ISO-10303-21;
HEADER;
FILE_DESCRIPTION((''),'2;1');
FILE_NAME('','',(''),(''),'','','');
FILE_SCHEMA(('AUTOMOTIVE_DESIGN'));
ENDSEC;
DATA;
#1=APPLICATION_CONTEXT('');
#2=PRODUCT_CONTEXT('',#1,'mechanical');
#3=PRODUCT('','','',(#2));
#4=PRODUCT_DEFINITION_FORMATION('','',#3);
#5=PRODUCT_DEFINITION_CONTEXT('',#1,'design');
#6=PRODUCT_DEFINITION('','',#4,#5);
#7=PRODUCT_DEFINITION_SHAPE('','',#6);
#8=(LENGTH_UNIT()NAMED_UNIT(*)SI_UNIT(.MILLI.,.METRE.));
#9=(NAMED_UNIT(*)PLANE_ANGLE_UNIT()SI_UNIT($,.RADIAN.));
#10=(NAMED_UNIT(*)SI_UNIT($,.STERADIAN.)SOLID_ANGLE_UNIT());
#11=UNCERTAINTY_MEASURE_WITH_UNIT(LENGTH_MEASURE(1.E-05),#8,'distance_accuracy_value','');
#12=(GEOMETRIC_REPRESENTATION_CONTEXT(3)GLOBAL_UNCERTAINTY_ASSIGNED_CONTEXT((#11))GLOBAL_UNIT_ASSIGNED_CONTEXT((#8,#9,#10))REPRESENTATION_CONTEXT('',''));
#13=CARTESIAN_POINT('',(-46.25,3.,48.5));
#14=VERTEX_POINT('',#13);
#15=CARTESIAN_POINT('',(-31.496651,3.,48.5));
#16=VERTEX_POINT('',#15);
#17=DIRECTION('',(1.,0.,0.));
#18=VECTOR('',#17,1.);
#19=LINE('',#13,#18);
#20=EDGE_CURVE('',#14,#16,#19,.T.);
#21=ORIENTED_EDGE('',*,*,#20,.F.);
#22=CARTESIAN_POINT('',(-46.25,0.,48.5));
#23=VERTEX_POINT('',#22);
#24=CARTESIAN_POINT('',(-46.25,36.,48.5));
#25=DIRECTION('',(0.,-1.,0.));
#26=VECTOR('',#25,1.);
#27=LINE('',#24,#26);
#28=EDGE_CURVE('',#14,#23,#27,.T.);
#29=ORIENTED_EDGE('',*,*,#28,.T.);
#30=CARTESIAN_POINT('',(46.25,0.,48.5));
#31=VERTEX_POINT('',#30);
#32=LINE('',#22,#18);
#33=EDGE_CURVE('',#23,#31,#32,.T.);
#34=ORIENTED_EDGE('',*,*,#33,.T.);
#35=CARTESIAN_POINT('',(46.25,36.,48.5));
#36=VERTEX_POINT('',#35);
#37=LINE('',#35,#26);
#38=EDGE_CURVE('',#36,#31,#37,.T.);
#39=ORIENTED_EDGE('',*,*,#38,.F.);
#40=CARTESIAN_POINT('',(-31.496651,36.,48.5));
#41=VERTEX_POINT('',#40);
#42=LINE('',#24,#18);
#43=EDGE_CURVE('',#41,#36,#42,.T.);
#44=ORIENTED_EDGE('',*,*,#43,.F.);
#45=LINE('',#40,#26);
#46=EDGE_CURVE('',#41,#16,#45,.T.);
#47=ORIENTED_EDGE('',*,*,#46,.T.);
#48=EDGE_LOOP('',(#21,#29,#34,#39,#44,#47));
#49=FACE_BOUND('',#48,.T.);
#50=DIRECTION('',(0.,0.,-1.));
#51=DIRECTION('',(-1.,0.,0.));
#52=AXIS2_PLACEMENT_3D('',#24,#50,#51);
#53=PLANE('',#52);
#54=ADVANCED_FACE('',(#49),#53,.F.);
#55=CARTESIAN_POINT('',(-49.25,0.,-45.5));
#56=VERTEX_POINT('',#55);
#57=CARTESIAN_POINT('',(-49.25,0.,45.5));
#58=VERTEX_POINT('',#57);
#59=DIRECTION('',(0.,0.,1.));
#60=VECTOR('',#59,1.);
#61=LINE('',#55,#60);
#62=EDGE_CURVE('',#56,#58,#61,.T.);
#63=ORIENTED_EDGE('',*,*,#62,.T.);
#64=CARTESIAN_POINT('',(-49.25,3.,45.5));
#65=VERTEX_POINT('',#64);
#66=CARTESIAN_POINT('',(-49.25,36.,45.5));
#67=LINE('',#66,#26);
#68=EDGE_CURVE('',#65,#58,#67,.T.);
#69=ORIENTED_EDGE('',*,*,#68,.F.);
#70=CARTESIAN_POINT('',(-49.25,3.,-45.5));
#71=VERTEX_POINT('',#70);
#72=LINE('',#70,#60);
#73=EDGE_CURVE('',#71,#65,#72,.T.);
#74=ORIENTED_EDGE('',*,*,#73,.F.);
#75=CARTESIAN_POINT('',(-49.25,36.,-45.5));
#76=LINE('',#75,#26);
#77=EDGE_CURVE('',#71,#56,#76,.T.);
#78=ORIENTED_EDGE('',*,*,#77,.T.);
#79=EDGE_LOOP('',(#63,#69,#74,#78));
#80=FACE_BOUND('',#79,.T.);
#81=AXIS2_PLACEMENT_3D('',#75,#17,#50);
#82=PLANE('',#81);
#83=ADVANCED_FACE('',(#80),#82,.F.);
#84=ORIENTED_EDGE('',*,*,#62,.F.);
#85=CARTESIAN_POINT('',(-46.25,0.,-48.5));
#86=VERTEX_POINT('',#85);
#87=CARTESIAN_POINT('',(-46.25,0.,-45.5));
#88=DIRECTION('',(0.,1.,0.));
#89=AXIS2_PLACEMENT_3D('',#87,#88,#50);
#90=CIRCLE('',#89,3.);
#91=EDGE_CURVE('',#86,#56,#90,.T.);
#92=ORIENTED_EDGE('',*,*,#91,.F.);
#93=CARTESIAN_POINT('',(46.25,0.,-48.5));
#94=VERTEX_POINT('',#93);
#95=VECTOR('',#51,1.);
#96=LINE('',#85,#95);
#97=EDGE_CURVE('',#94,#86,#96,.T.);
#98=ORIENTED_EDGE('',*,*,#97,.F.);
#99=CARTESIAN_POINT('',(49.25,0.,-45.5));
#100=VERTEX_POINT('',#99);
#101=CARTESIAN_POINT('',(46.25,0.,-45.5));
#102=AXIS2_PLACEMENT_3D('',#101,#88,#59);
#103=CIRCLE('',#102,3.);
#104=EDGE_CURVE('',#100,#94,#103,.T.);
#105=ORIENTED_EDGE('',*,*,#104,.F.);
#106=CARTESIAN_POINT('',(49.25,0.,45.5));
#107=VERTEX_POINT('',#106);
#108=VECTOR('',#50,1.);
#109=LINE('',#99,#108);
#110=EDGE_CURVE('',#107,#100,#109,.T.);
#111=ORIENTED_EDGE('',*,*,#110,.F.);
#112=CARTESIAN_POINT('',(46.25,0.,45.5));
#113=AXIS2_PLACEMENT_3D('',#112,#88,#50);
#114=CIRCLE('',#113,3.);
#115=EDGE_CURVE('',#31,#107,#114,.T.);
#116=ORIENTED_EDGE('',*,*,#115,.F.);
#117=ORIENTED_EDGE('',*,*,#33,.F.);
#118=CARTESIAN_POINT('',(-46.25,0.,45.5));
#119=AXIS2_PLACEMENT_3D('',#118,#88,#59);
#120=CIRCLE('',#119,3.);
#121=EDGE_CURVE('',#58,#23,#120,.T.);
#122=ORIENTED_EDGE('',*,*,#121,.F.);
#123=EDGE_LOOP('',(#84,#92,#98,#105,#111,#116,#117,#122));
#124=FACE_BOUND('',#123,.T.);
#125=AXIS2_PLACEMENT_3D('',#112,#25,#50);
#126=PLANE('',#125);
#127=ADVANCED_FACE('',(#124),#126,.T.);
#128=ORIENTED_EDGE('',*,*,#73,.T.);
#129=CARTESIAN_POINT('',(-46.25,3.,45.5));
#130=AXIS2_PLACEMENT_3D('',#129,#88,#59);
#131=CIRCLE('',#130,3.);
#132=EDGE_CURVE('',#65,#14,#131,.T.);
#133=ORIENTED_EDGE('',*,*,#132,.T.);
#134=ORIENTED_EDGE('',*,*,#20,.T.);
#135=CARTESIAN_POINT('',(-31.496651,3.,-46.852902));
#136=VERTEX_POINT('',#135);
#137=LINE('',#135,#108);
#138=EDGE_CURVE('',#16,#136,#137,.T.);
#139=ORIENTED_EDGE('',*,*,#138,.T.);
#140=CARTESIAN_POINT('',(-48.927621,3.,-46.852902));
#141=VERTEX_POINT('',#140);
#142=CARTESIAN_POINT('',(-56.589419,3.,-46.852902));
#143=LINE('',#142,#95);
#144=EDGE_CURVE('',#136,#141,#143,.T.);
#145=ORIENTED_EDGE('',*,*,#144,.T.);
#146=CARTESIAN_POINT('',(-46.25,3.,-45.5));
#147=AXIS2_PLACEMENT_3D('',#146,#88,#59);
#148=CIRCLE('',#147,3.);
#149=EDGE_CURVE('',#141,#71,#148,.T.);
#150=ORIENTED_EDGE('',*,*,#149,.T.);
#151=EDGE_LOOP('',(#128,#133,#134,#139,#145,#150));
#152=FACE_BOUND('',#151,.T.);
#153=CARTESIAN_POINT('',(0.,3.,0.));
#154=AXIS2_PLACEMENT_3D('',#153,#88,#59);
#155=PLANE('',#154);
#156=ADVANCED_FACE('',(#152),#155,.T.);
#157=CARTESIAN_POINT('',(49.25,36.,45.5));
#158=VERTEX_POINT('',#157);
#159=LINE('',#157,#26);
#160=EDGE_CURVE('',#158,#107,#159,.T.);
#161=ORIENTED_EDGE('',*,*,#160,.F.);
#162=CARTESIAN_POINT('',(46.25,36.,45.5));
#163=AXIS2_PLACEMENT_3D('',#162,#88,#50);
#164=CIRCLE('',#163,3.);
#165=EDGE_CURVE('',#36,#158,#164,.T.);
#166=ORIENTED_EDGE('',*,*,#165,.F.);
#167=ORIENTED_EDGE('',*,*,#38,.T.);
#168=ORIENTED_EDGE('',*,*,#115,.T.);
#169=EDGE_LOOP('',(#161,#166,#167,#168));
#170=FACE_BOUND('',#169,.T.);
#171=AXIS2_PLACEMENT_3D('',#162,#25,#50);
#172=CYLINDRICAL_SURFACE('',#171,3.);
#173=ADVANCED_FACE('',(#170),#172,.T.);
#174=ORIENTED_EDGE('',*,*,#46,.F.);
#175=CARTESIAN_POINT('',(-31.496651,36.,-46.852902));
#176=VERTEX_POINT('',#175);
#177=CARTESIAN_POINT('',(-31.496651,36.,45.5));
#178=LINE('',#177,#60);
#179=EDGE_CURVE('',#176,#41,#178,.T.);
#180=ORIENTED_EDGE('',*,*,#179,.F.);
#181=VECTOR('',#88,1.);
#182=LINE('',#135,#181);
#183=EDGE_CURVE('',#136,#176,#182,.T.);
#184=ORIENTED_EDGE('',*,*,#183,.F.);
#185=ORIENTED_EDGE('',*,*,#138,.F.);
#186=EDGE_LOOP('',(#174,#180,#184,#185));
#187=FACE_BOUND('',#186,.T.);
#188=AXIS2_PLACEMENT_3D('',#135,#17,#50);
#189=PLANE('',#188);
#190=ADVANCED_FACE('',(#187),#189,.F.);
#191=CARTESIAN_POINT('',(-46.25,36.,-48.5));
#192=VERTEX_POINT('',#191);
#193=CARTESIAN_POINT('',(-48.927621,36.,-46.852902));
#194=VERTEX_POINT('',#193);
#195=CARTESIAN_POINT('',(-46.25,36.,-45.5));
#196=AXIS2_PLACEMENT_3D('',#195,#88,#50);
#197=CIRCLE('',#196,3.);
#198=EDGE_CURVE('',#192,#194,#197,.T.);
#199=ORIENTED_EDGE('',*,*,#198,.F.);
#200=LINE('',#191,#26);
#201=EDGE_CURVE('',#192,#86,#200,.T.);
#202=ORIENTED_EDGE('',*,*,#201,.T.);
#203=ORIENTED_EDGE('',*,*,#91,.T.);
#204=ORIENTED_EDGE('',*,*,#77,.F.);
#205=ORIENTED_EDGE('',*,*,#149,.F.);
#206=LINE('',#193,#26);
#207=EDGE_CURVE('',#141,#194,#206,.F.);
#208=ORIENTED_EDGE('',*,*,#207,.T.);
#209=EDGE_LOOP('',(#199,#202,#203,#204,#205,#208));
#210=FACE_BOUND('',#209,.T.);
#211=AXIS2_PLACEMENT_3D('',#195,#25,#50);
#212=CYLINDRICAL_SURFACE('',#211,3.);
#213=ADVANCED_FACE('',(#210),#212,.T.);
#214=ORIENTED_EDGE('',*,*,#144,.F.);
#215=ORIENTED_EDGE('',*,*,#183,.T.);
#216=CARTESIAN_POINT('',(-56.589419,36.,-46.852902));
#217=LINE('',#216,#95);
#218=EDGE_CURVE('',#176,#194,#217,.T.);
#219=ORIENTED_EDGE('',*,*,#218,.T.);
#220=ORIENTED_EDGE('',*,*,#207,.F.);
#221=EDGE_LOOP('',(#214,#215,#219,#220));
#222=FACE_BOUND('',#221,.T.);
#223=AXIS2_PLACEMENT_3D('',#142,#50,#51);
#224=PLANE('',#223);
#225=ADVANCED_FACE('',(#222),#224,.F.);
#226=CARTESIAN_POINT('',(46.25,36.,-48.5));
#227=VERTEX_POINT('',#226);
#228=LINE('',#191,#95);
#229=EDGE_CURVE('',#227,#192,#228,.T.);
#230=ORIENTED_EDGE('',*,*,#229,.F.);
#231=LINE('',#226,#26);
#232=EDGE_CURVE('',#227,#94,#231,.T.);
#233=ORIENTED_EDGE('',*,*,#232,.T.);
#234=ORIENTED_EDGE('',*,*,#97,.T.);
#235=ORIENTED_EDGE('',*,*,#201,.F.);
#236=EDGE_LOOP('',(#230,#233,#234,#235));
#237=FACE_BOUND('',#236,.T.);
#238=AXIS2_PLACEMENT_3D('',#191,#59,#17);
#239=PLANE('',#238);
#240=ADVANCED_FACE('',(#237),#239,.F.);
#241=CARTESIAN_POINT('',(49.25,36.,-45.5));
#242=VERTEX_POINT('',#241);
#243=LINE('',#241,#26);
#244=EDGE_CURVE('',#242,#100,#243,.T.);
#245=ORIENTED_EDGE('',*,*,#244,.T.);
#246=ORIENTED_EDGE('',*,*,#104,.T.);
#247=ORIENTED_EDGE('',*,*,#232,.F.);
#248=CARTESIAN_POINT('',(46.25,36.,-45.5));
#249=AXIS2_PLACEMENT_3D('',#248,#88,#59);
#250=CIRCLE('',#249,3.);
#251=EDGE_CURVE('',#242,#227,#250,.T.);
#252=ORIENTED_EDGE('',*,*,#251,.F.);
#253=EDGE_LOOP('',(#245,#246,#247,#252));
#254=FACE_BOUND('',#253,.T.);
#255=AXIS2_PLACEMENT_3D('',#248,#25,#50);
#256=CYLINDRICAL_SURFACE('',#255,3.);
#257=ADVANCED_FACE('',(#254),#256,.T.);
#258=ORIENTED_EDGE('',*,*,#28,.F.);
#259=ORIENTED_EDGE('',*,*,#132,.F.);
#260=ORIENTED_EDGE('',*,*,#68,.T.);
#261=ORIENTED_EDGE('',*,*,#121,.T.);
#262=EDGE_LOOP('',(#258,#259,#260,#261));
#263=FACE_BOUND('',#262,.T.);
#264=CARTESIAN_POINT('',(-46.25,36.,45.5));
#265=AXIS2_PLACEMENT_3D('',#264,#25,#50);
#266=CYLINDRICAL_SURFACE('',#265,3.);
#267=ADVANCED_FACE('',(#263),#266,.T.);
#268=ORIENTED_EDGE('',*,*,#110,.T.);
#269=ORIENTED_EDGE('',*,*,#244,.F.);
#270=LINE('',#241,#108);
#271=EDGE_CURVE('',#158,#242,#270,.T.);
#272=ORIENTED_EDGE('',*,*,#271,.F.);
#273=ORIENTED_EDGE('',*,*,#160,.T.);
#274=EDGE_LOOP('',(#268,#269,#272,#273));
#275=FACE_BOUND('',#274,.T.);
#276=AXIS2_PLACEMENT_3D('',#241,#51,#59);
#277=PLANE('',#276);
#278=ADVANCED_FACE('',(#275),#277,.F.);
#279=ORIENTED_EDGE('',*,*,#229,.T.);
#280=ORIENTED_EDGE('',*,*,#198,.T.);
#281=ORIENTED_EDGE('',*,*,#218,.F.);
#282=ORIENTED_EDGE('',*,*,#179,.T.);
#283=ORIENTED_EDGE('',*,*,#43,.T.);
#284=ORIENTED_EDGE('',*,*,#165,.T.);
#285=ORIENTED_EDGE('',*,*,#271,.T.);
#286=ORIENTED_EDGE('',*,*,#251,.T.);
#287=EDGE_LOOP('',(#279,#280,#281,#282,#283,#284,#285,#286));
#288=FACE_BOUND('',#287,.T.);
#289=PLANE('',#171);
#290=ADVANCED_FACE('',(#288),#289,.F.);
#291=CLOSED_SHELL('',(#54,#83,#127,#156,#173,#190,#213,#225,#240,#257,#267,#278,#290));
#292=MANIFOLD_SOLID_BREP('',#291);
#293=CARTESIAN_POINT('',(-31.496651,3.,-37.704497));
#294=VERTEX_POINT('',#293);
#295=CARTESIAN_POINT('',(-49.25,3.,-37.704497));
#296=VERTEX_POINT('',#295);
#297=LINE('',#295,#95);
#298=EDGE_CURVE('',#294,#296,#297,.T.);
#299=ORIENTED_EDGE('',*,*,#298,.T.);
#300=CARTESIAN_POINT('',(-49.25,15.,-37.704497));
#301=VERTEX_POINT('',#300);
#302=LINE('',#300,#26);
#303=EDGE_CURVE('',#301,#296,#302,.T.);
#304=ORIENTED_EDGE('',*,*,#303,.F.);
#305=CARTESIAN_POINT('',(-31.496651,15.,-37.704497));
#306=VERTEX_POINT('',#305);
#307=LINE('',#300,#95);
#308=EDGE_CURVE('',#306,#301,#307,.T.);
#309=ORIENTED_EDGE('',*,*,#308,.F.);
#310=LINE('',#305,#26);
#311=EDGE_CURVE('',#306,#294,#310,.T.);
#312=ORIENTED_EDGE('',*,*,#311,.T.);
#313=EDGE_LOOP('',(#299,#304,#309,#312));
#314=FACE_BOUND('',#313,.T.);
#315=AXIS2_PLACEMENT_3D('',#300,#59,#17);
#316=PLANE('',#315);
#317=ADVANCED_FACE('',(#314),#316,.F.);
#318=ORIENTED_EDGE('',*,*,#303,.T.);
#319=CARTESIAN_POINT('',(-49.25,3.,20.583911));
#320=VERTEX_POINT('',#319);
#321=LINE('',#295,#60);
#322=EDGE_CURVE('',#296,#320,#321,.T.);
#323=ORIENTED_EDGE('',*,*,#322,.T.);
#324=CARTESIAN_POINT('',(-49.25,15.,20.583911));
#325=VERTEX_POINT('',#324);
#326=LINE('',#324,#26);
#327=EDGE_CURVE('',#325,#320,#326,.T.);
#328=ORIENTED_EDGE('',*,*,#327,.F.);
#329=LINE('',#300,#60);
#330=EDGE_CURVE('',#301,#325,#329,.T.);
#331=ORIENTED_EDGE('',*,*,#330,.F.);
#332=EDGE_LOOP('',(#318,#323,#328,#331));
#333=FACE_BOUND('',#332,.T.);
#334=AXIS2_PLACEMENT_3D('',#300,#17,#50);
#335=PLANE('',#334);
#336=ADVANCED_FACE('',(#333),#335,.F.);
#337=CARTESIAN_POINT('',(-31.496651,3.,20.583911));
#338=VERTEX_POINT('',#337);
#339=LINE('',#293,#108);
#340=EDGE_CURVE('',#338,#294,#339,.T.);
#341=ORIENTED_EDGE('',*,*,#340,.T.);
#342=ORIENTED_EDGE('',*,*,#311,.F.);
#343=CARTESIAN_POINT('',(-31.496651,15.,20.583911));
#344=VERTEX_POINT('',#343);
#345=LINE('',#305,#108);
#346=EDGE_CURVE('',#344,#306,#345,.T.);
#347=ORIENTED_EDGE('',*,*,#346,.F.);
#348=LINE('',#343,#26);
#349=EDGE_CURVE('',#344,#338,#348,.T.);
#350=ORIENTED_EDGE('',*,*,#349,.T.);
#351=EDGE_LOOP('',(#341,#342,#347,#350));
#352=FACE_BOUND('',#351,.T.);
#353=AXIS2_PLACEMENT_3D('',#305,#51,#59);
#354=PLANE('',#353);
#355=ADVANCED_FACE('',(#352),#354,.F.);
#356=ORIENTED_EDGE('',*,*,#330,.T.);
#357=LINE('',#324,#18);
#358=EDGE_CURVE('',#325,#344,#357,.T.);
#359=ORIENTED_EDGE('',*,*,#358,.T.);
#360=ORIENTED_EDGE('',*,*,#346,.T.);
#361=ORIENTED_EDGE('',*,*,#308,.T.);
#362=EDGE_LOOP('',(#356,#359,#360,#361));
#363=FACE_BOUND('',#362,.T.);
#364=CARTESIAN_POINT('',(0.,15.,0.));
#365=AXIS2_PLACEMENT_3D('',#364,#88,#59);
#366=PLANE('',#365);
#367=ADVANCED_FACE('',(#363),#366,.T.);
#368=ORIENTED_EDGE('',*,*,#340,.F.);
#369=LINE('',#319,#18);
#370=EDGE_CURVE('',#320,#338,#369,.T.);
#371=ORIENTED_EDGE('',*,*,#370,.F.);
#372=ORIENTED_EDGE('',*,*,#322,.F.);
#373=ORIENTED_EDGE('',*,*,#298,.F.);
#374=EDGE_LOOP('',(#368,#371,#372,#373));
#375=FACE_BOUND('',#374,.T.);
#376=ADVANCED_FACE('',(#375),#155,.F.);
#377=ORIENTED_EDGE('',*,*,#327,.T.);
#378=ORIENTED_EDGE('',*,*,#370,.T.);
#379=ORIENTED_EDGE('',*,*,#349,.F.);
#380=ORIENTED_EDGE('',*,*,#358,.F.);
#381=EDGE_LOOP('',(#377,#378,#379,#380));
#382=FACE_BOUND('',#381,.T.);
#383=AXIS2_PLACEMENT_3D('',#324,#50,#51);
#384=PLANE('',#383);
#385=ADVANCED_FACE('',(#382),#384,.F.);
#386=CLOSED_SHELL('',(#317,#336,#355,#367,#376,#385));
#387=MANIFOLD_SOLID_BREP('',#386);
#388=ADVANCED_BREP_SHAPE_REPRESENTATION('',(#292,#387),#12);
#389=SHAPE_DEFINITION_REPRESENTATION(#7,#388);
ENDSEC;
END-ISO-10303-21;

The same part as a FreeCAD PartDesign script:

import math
import FreeCAD as App
import Part
import Sketcher
Q = App.Units.Quantity

doc = App.newDocument("Part")
params = doc.addObject("Spreadsheet::Sheet", "Params")
for row, (alias, value) in enumerate([
    ("sketch1_radius", "3 mm"),
    ("sketch1_height", "91 mm"),
    ("sketch1_width", "92.5 mm"),
    ("pad1_length", "36 mm"),
    ("pocket1_length", "33 mm"),
    ("pad2_length", "12 mm"),
], start=1):
    params.set(f"A{row}", alias)
    params.set(f"B{row}", "=" + value)
    params.setAlias(f"B{row}", alias)

body = doc.addObject("PartDesign::Body", "Body")

# Sketch on XZ plane
sketch1 = body.newObject("Sketcher::SketchObject", "Sketch")
sketch1.AttachmentSupport = (doc.getObject("XZ_Plane"), [""])
sketch1.MapMode = "FlatFace"
sketch1.addGeometry(Part.LineSegment(App.Vector(46.2, -48.5, 0), App.Vector(-46.2, -48.5, 0)), False)
sketch1.addGeometry(Part.ArcOfCircle(Part.Circle(App.Vector(-46.3, -45.5, 0), App.Vector(0, 0, 1), 3), math.radians(180), math.radians(270)), False)
sketch1.addGeometry(Part.LineSegment(App.Vector(-49.2, -45.5, 0), App.Vector(-49.2, 45.5, 0)), False)
sketch1.addGeometry(Part.ArcOfCircle(Part.Circle(App.Vector(-46.3, 45.5, 0), App.Vector(0, 0, 1), 3), math.radians(90), math.radians(180)), False)
sketch1.addGeometry(Part.LineSegment(App.Vector(-46.2, 48.5, 0), App.Vector(46.2, 48.5, 0)), False)
sketch1.addGeometry(Part.ArcOfCircle(Part.Circle(App.Vector(46.3, 45.5, 0), App.Vector(0, 0, 1), 3), math.radians(0), math.radians(90)), False)
sketch1.addGeometry(Part.LineSegment(App.Vector(49.2, 45.5, 0), App.Vector(49.2, -45.5, 0)), False)
sketch1.addGeometry(Part.ArcOfCircle(Part.Circle(App.Vector(46.3, -45.5, 0), App.Vector(0, 0, 1), 3), math.radians(-90), math.radians(0)), False)
sketch1.addConstraint(Sketcher.Constraint("Tangent", 0, 2, 1, 2))
sketch1.addConstraint(Sketcher.Constraint("Tangent", 1, 1, 2, 1))
sketch1.addConstraint(Sketcher.Constraint("Tangent", 2, 2, 3, 2))
sketch1.addConstraint(Sketcher.Constraint("Tangent", 3, 1, 4, 1))
sketch1.addConstraint(Sketcher.Constraint("Tangent", 4, 2, 5, 2))
sketch1.addConstraint(Sketcher.Constraint("Tangent", 5, 1, 6, 1))
sketch1.addConstraint(Sketcher.Constraint("Tangent", 6, 2, 7, 2))
sketch1.addConstraint(Sketcher.Constraint("Tangent", 7, 1, 0, 1))
sketch1.addConstraint(Sketcher.Constraint("Horizontal", 0))
sketch1.addConstraint(Sketcher.Constraint("Vertical", 2))
sketch1.addConstraint(Sketcher.Constraint("Horizontal", 4))
sketch1.addConstraint(Sketcher.Constraint("Vertical", 6))
sketch1.addConstraint(Sketcher.Constraint("Equal", 1, 3))
sketch1.addConstraint(Sketcher.Constraint("Equal", 3, 5))
sketch1.addConstraint(Sketcher.Constraint("Equal", 5, 7))
sketch1.addConstraint(Sketcher.Constraint("Symmetric", 1, 3, 5, 3, -1, 1))
sketch1.addConstraint(Sketcher.Constraint("Radius", 1, Q("3 mm")))
sketch1.addConstraint(Sketcher.Constraint("DistanceY", 2, 1, 2, 2, Q("91 mm")))
sketch1.addConstraint(Sketcher.Constraint("DistanceX", 0, 2, 0, 1, Q("92.5 mm")))
sketch1.setExpression("Constraints[16]", "Params.sketch1_radius")
sketch1.setExpression("Constraints[17]", "Params.sketch1_height")
sketch1.setExpression("Constraints[18]", "Params.sketch1_width")
pad1 = body.newObject("PartDesign::Pad", "Pad")
pad1.Profile = sketch1
pad1.setExpression("Length", "Params.pad1_length")
pad1.Reversed = True

# Sketch on XZ plane
sketch2 = body.newObject("Sketcher::SketchObject", "Sketch001")
sketch2.AttachmentSupport = (doc.getObject("XZ_Plane"), [""])
sketch2.MapMode = "FlatFace"
sketch2.AttachmentOffset = App.Placement(App.Vector(0, 0, -36), App.Rotation())
sketch2.addGeometry(Part.LineSegment(App.Vector(-57, -47, 0), App.Vector(-57, 51, 0)), False)
sketch2.addGeometry(Part.LineSegment(App.Vector(-57, 51, 0), App.Vector(-31, 51, 0)), False)
sketch2.addGeometry(Part.LineSegment(App.Vector(-31, 51, 0), App.Vector(-31, -47, 0)), False)
sketch2.addGeometry(Part.LineSegment(App.Vector(-31, -47, 0), App.Vector(-57, -47, 0)), False)
sketch2.addConstraint(Sketcher.Constraint("Coincident", 0, 2, 1, 1))
sketch2.addConstraint(Sketcher.Constraint("Coincident", 1, 2, 2, 1))
sketch2.addConstraint(Sketcher.Constraint("Coincident", 2, 2, 3, 1))
sketch2.addConstraint(Sketcher.Constraint("Coincident", 3, 2, 0, 1))
sketch2.addConstraint(Sketcher.Constraint("Vertical", 0))
sketch2.addConstraint(Sketcher.Constraint("Horizontal", 1))
sketch2.addConstraint(Sketcher.Constraint("Vertical", 2))
sketch2.addConstraint(Sketcher.Constraint("Horizontal", 3))
sketch2.addConstraint(Sketcher.Constraint("DistanceX", 1, 1, 1, 2, Q("25.092768 mm")))
sketch2.addConstraint(Sketcher.Constraint("DistanceY", 0, 1, 0, 2, Q("98.018624 mm")))
sketch2.addConstraint(Sketcher.Constraint("DistanceX", 0, 2, -1, 1, Q("56.589419 mm")))
sketch2.addConstraint(Sketcher.Constraint("DistanceY", -1, 1, 0, 2, Q("51.165721 mm")))
pocket1 = body.newObject("PartDesign::Pocket", "Pocket")
pocket1.Profile = sketch2
pocket1.setExpression("Length", "Params.pocket1_length")
pocket1.Reversed = True
body2 = doc.addObject("PartDesign::Body", "Body001")

# Sketch on XZ plane
sketch3 = body2.newObject("Sketcher::SketchObject", "Sketch002")
sketch3.AttachmentSupport = (doc.getObject("XZ_Plane001"), [""])
sketch3.MapMode = "FlatFace"
sketch3.AttachmentOffset = App.Placement(App.Vector(0, 0, -3), App.Rotation())
sketch3.addGeometry(Part.LineSegment(App.Vector(-49, -38, 0), App.Vector(-49, 21, 0)), False)
sketch3.addGeometry(Part.LineSegment(App.Vector(-49, 21, 0), App.Vector(-31, 21, 0)), False)
sketch3.addGeometry(Part.LineSegment(App.Vector(-31, 21, 0), App.Vector(-31, -38, 0)), False)
sketch3.addGeometry(Part.LineSegment(App.Vector(-31, -38, 0), App.Vector(-49, -38, 0)), False)
sketch3.addConstraint(Sketcher.Constraint("Coincident", 0, 2, 1, 1))
sketch3.addConstraint(Sketcher.Constraint("Coincident", 1, 2, 2, 1))
sketch3.addConstraint(Sketcher.Constraint("Coincident", 2, 2, 3, 1))
sketch3.addConstraint(Sketcher.Constraint("Coincident", 3, 2, 0, 1))
sketch3.addConstraint(Sketcher.Constraint("Vertical", 0))
sketch3.addConstraint(Sketcher.Constraint("Horizontal", 1))
sketch3.addConstraint(Sketcher.Constraint("Vertical", 2))
sketch3.addConstraint(Sketcher.Constraint("Horizontal", 3))
sketch3.addConstraint(Sketcher.Constraint("DistanceX", 0, 2, -1, 1, Q("49.25 mm")))
sketch3.addConstraint(Sketcher.Constraint("DistanceX", 1, 1, 1, 2, Q("17.753349 mm")))
sketch3.addConstraint(Sketcher.Constraint("DistanceY", 0, 1, 0, 2, Q("58.288408 mm")))
sketch3.addConstraint(Sketcher.Constraint("DistanceY", -1, 1, 0, 2, Q("20.583911 mm")))
pad2 = body2.newObject("PartDesign::Pad", "Pad001")
pad2.Profile = sketch3
pad2.setExpression("Length", "Params.pad2_length")
pad2.Reversed = True

doc.recompute()
